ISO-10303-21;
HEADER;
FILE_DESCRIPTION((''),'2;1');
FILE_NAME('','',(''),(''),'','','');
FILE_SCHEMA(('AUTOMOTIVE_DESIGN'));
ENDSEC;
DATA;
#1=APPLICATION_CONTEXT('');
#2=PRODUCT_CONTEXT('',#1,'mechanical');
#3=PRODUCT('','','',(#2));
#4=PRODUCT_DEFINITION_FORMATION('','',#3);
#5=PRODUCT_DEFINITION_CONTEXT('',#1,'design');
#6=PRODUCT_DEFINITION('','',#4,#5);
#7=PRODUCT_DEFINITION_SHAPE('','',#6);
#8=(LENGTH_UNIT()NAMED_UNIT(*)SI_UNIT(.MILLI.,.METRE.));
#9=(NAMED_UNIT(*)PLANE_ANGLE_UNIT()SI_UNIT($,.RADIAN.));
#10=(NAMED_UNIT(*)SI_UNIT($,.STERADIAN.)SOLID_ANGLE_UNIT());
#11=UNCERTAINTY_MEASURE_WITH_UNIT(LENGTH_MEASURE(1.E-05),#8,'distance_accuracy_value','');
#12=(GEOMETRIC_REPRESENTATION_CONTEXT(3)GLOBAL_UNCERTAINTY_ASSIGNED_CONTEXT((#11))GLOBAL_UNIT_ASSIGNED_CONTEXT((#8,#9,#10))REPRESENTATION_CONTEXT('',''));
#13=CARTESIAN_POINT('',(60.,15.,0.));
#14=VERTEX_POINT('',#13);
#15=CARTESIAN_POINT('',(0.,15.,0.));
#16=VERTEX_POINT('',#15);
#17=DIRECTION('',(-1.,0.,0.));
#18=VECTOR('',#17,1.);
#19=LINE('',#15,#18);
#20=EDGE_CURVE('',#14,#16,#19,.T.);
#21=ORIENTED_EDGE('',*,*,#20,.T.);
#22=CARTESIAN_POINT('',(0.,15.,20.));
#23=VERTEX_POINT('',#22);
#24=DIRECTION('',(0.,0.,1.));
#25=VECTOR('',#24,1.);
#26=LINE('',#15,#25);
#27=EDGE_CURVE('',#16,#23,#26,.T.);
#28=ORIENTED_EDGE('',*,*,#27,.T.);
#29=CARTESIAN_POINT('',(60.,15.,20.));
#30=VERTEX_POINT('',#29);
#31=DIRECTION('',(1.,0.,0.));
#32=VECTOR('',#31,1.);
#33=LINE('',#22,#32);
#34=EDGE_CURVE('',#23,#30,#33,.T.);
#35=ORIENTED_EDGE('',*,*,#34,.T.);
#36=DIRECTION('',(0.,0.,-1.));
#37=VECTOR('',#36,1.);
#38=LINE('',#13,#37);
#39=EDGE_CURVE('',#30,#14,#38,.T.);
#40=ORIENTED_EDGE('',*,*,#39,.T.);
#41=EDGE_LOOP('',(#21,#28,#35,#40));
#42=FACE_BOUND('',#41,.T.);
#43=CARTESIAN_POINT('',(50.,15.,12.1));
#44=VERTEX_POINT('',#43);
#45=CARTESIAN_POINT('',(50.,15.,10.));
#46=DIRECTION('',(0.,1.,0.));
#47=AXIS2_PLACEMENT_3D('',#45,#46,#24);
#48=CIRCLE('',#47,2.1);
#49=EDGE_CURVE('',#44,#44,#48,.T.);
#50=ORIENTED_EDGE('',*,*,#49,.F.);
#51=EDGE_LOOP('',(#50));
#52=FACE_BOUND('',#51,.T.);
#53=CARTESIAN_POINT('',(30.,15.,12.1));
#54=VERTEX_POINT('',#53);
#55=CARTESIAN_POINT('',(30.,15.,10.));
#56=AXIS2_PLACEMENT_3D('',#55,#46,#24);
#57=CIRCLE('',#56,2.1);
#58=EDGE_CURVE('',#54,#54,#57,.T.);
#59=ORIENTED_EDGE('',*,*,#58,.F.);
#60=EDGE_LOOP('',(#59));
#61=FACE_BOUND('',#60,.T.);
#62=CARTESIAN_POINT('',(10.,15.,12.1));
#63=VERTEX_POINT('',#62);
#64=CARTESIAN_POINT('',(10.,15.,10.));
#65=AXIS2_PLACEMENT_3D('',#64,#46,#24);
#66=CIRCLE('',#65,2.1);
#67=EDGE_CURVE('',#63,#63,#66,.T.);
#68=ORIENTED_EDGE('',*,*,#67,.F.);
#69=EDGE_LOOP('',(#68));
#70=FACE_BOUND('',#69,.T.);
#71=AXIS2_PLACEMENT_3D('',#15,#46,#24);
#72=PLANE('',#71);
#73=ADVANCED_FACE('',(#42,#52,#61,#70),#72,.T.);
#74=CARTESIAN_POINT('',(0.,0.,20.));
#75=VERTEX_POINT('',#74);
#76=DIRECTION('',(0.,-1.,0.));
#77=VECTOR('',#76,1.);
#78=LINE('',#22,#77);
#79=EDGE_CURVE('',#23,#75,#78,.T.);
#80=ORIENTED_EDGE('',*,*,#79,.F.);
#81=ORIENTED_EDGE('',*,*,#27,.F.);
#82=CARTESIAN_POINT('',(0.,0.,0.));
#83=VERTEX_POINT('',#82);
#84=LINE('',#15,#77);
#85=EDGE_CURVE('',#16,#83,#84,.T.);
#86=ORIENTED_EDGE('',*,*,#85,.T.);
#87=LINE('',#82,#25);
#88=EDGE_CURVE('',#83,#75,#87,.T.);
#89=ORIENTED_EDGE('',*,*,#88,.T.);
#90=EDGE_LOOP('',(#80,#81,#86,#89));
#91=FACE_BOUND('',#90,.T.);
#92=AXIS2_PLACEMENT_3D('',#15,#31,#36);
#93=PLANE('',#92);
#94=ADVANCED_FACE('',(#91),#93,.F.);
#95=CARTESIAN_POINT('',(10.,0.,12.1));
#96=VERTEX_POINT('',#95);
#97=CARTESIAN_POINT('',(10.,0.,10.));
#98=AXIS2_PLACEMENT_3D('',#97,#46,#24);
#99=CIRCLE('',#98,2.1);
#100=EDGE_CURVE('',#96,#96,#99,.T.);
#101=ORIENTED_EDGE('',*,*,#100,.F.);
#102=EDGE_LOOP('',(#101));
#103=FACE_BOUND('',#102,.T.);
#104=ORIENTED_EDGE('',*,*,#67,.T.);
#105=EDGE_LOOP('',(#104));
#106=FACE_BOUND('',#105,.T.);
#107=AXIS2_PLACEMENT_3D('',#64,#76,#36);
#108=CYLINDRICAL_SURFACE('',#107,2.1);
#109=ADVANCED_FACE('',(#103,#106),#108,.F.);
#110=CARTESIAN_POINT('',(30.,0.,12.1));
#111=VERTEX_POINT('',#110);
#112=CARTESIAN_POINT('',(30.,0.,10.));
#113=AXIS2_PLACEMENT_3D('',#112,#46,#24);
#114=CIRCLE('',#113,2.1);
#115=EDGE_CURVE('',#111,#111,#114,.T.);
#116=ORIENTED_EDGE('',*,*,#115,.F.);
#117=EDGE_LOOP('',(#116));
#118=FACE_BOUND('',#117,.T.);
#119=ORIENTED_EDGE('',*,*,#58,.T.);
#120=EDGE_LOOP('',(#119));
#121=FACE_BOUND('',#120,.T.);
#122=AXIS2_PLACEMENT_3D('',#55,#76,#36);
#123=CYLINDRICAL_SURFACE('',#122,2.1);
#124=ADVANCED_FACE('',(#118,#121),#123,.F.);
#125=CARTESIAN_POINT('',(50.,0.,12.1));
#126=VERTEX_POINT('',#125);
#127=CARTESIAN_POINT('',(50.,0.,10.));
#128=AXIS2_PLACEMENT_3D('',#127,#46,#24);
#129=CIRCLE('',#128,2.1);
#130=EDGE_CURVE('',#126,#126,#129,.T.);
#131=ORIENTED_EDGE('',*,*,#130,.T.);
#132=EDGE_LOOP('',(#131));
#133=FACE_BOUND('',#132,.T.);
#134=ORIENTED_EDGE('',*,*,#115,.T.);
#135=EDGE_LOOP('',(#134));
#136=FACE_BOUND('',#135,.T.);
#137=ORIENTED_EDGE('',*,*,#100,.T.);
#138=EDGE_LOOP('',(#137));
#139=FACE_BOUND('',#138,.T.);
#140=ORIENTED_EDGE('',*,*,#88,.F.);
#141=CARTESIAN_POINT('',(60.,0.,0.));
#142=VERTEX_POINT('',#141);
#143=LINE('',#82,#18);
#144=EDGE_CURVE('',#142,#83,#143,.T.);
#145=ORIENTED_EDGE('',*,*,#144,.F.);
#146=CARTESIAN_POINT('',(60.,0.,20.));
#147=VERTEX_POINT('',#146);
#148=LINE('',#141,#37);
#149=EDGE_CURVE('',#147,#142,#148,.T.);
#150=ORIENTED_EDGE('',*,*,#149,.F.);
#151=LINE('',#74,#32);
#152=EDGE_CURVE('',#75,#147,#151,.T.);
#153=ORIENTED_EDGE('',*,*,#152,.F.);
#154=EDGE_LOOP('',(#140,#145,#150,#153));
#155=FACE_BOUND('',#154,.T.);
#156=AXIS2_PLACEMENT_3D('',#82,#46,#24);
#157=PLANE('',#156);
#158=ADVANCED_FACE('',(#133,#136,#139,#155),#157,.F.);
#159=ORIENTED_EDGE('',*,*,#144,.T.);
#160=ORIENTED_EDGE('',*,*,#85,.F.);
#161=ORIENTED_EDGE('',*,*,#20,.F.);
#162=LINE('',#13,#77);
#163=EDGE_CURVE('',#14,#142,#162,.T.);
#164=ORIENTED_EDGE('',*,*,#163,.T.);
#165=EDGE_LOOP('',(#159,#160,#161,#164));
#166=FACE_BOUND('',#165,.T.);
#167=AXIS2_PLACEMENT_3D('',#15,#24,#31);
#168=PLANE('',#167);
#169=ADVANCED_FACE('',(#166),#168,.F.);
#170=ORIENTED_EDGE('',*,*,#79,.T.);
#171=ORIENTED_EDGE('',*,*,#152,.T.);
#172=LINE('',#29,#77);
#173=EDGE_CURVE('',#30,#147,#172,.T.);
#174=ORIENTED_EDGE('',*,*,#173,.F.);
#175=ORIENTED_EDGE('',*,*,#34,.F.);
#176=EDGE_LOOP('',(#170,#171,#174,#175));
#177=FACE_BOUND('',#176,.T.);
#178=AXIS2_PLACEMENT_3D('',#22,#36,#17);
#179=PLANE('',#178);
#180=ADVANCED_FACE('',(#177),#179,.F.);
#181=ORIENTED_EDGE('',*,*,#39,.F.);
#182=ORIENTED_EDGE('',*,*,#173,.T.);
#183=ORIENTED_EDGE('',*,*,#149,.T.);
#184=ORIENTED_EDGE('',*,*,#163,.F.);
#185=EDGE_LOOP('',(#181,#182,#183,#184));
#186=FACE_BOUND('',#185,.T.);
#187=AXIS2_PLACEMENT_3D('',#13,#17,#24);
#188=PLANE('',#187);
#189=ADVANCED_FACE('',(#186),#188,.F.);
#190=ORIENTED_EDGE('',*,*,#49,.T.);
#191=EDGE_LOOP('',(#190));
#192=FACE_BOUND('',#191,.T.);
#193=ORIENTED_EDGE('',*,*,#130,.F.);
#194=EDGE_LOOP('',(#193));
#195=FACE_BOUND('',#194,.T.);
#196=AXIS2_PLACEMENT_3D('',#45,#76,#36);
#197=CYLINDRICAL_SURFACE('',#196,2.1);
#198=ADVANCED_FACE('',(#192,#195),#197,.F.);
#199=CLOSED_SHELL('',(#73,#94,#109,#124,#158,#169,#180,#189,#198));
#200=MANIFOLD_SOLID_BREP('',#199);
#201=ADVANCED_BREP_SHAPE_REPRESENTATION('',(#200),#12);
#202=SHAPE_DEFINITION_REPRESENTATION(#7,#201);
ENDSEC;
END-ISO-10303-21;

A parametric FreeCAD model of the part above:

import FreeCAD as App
import Part
import Sketcher

V = App.Vector


def add_polygon(sketch, points):
    """Adds a closed chain of lines whose ends are joined by coincident constraints."""
    first, n = sketch.GeometryCount, len(points)
    for a, b in zip(points, points[1:] + points[:1]):
        sketch.addGeometry(Part.LineSegment(App.Vector(*a, 0), App.Vector(*b, 0)), False)
    for i in range(n):
        sketch.addConstraint(Sketcher.Constraint("Coincident", first + i, 2, first + (i + 1) % n, 1))

doc = App.newDocument("Part")
params = doc.addObject("Spreadsheet::Sheet", "Params")
for row, (alias, value) in enumerate([
    ("sketch1_diameter", "4.2 mm"),
    ("sketch1_width", "60 mm"),
    ("sketch1_height", "20 mm"),
    ("pad1_length", "15 mm"),
], start=1):
    params.set(f"A{row}", alias)
    params.set(f"B{row}", "=" + value)
    params.setAlias(f"B{row}", alias)

body = doc.addObject("PartDesign::Body", "Body")

sketch1 = body.newObject("Sketcher::SketchObject", "Sketch")
sketch1.AttachmentSupport = (doc.getObject("XZ_Plane"), [""])
sketch1.MapMode = "FlatFace"
add_polygon(sketch1, [(0, 0), (0, 20), (60, 20), (60, 0)])
sketch1.addGeometry(Part.Circle(V(10, 10, 0), V(0, 0, 1), 2.1), False)
sketch1.addGeometry(Part.Circle(V(30, 10, 0), V(0, 0, 1), 2.1), False)
sketch1.addGeometry(Part.Circle(V(50, 10, 0), V(0, 0, 1), 2.1), False)
sketch1.addConstraint(Sketcher.Constraint("Vertical", 0))
sketch1.addConstraint(Sketcher.Constraint("Horizontal", 1))
sketch1.addConstraint(Sketcher.Constraint("Vertical", 2))
sketch1.addConstraint(Sketcher.Constraint("Horizontal", 3))
sketch1.addConstraint(Sketcher.Constraint("Coincident", 3, 2, -1, 1))
sketch1.addConstraint(Sketcher.Constraint("Equal", 4, 5))
sketch1.addConstraint(Sketcher.Constraint("Equal", 5, 6))
sketch1.addConstraint(Sketcher.Constraint("Horizontal", 4, 3, 5, 3))
sketch1.addConstraint(Sketcher.Constraint("Horizontal", 5, 3, 6, 3))
sketch1.addConstraint(Sketcher.Constraint("Diameter", 4, 4.2))
sketch1.addConstraint(Sketcher.Constraint("DistanceX", 1, 1, 1, 2, 60.0))
sketch1.addConstraint(Sketcher.Constraint("DistanceY", 0, 1, 0, 2, 20.0))
sketch1.addConstraint(Sketcher.Constraint("DistanceX", -1, 1, 4, 3, 10.0))
sketch1.addConstraint(Sketcher.Constraint("DistanceY", -1, 1, 4, 3, 10.0))
sketch1.addConstraint(Sketcher.Constraint("DistanceX", -1, 1, 5, 3, 30.0))
sketch1.addConstraint(Sketcher.Constraint("DistanceX", -1, 1, 6, 3, 50.0))
sketch1.setExpression("Constraints[13]", "Params.sketch1_diameter")
sketch1.setExpression("Constraints[14]", "Params.sketch1_width")
sketch1.setExpression("Constraints[15]", "Params.sketch1_height")
pad1 = body.newObject("PartDesign::Pad", "Pad")
pad1.Profile = sketch1
pad1.setExpression("Length", "Params.pad1_length")
pad1.Reversed = True

doc.recompute()
